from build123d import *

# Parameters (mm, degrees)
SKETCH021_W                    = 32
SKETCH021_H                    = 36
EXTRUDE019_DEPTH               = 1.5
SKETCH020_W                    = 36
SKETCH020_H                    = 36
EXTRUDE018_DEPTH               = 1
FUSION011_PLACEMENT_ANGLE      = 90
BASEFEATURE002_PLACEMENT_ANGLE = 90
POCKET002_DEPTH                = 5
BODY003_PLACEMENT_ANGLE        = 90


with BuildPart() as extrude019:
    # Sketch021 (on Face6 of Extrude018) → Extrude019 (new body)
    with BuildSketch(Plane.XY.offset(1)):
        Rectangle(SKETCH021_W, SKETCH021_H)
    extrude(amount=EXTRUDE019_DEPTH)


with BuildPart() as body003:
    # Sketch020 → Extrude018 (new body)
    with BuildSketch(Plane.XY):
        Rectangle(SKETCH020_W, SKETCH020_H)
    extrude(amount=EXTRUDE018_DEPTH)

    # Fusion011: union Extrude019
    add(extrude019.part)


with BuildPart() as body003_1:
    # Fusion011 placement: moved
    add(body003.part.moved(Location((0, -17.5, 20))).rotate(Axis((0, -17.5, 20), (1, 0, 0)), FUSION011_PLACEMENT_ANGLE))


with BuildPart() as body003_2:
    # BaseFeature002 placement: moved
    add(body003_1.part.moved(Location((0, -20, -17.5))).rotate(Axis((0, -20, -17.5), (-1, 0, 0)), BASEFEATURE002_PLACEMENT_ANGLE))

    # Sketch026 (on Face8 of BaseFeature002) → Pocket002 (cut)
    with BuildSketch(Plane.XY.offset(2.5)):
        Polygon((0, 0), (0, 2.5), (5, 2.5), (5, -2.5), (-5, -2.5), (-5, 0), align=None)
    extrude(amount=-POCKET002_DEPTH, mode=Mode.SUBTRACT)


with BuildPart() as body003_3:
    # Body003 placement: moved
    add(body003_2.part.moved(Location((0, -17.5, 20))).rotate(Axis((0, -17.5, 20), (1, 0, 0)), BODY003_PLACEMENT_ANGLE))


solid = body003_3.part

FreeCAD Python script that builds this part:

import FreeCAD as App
import Part
import Sketcher
Q = App.Units.Quantity

doc = App.newDocument("Part")
params = doc.addObject("Spreadsheet::Sheet", "Params")
for row, (alias, value) in enumerate([
    ("sketch1_width", "32 mm"),
    ("sketch1_height", "36 mm"),
    ("pad1_length", "1.5 mm"),
    ("sketch2_width", "36 mm"),
    ("pad2_length", "1 mm"),
    ("sketch3_width", "5 mm"),
    ("pocket1_length", "5 mm"),
], start=1):
    params.set(f"A{row}", alias)
    params.set(f"B{row}", "=" + value)
    params.setAlias(f"B{row}", alias)

body = doc.addObject("PartDesign::Body", "Body")

# Sketch on XY plane
sketch1 = body.newObject("Sketcher::SketchObject", "Sketch")
sketch1.AttachmentSupport = (doc.getObject("XY_Plane"), [""])
sketch1.MapMode = "FlatFace"
sketch1.AttachmentOffset = App.Placement(App.Vector(0, 0, 1), App.Rotation())
sketch1.addGeometry([
    Part.LineSegment(App.Vector(-16, 18, 0), App.Vector(-16, -18, 0)),
    Part.LineSegment(App.Vector(-16, -18, 0), App.Vector(16, -18, 0)),
    Part.LineSegment(App.Vector(16, -18, 0), App.Vector(16, 18, 0)),
    Part.LineSegment(App.Vector(16, 18, 0), App.Vector(-16, 18, 0)),
], False)
sketch1.addConstraint([
    Sketcher.Constraint("Coincident", 0, 2, 1, 1),
    Sketcher.Constraint("Coincident", 1, 2, 2, 1),
    Sketcher.Constraint("Coincident", 2, 2, 3, 1),
    Sketcher.Constraint("Coincident", 3, 2, 0, 1),
    Sketcher.Constraint("Vertical", 0),
    Sketcher.Constraint("Horizontal", 1),
    Sketcher.Constraint("Vertical", 2),
    Sketcher.Constraint("Horizontal", 3),
    Sketcher.Constraint("Symmetric", 0, 2, 2, 2, -1, 1),
    Sketcher.Constraint("DistanceX", 1, 1, 1, 2, Q("32 mm")),
    Sketcher.Constraint("DistanceY", 0, 2, 0, 1, Q("36 mm")),
])
sketch1.setExpression("Constraints[9]", "Params.sketch1_width")
sketch1.setExpression("Constraints[10]", "Params.sketch1_height")
pad1 = body.newObject("PartDesign::Pad", "Pad")
pad1.Profile = sketch1
pad1.setExpression("Length", "Params.pad1_length")
body2 = doc.addObject("PartDesign::Body", "Body001")

# Sketch on XY plane
sketch2 = body2.newObject("Sketcher::SketchObject", "Sketch001")
sketch2.AttachmentSupport = (doc.getObject("XY_Plane001"), [""])
sketch2.MapMode = "FlatFace"
sketch2.addGeometry([
    Part.LineSegment(App.Vector(-18, 18, 0), App.Vector(-18, -18, 0)),
    Part.LineSegment(App.Vector(-18, -18, 0), App.Vector(18, -18, 0)),
    Part.LineSegment(App.Vector(18, -18, 0), App.Vector(18, 18, 0)),
    Part.LineSegment(App.Vector(18, 18, 0), App.Vector(-18, 18, 0)),
], False)
sketch2.addConstraint([
    Sketcher.Constraint("Coincident", 0, 2, 1, 1),
    Sketcher.Constraint("Coincident", 1, 2, 2, 1),
    Sketcher.Constraint("Coincident", 2, 2, 3, 1),
    Sketcher.Constraint("Coincident", 3, 2, 0, 1),
    Sketcher.Constraint("Vertical", 0),
    Sketcher.Constraint("Horizontal", 1),
    Sketcher.Constraint("Vertical", 2),
    Sketcher.Constraint("Horizontal", 3),
    Sketcher.Constraint("Symmetric", 0, 2, 2, 2, -1, 1),
    Sketcher.Constraint("Equal", 3, 0),
    Sketcher.Constraint("DistanceX", 1, 1, 1, 2, Q("36 mm")),
])
sketch2.setExpression("Constraints[10]", "Params.sketch2_width")
pad2 = body2.newObject("PartDesign::Pad", "Pad001")
pad2.Profile = sketch2
pad2.setExpression("Length", "Params.pad2_length")
doc.recompute()

boolean = body2.newObject("PartDesign::Boolean", "Boolean")
boolean.Type = "Fuse"
boolean.addObjects([body])
body3 = doc.addObject("PartDesign::Body", "Body002")
doc.recompute()

body2.Placement = App.Placement(App.Vector(0, -17.5, 20), App.Rotation(App.Vector(1, 0, 0), 90))
boolean2 = body3.newObject("PartDesign::Boolean", "Boolean001")
boolean2.Type = "Fuse"
boolean2.addObjects([body2])
body4 = doc.addObject("PartDesign::Body", "Body003")
doc.recompute()

body3.Placement = App.Placement(App.Vector(0, -20, -17.5), App.Rotation(App.Vector(-1, 0, 0), 90))
boolean3 = body4.newObject("PartDesign::Boolean", "Boolean002")
boolean3.Type = "Fuse"
boolean3.addObjects([body3])

# Sketch on XY plane
sketch3 = body4.newObject("Sketcher::SketchObject", "Sketch002")
sketch3.AttachmentSupport = (doc.getObject("XY_Plane003"), [""])
sketch3.MapMode = "FlatFace"
sketch3.AttachmentOffset = App.Placement(App.Vector(0, 0, 2.5), App.Rotation())
sketch3.addGeometry([
    Part.LineSegment(App.Vector(0, 2.5, 0), App.Vector(0, 0, 0)),  # 0
    Part.LineSegment(App.Vector(0, 0, 0), App.Vector(-5, 0, 0)),  # 1
    Part.LineSegment(App.Vector(-5, 0, 0), App.Vector(-5, -2.5, 0)),  # 2
    Part.LineSegment(App.Vector(-5, -2.5, 0), App.Vector(5, -2.5, 0)),  # 3
    Part.LineSegment(App.Vector(5, -2.5, 0), App.Vector(5, 2.5, 0)),  # 4
    Part.LineSegment(App.Vector(5, 2.5, 0), App.Vector(0, 2.5, 0)),  # 5
], False)
sketch3.addConstraint([
    Sketcher.Constraint("Coincident", 0, 2, 1, 1),
    Sketcher.Constraint("Coincident", 1, 2, 2, 1),
    Sketcher.Constraint("Coincident", 2, 2, 3, 1),
    Sketcher.Constraint("Coincident", 3, 2, 4, 1),
    Sketcher.Constraint("Coincident", 4, 2, 5, 1),
    Sketcher.Constraint("Coincident", 5, 2, 0, 1),
    Sketcher.Constraint("Vertical", 0),
    Sketcher.Constraint("Horizontal", 1),
    Sketcher.Constraint("Vertical", 2),
    Sketcher.Constraint("Horizontal", 3),
    Sketcher.Constraint("Vertical", 4),
    Sketcher.Constraint("Horizontal", 5),
    Sketcher.Constraint("Coincident", 0, 2, -1, 1),
    Sketcher.Constraint("Symmetric", 2, 2, 4, 2, -1, 1),
    Sketcher.Constraint("Equal", 5, 4),
    Sketcher.Constraint("DistanceX", 1, 2, 1, 1, Q("5 mm")),
])
sketch3.setExpression("Constraints[15]", "Params.sketch3_width")
pocket1 = body4.newObject("PartDesign::Pocket", "Pocket")
pocket1.Profile = sketch3
pocket1.setExpression("Length", "Params.pocket1_length")
body5 = doc.addObject("PartDesign::Body", "Body004")
doc.recompute()

body4.Placement = App.Placement(App.Vector(0, -17.5, 20), App.Rotation(App.Vector(1, 0, 0), 90))
boolean4 = body5.newObject("PartDesign::Boolean", "Boolean003")
boolean4.Type = "Fuse"
boolean4.addObjects([body4])

doc.recompute()
